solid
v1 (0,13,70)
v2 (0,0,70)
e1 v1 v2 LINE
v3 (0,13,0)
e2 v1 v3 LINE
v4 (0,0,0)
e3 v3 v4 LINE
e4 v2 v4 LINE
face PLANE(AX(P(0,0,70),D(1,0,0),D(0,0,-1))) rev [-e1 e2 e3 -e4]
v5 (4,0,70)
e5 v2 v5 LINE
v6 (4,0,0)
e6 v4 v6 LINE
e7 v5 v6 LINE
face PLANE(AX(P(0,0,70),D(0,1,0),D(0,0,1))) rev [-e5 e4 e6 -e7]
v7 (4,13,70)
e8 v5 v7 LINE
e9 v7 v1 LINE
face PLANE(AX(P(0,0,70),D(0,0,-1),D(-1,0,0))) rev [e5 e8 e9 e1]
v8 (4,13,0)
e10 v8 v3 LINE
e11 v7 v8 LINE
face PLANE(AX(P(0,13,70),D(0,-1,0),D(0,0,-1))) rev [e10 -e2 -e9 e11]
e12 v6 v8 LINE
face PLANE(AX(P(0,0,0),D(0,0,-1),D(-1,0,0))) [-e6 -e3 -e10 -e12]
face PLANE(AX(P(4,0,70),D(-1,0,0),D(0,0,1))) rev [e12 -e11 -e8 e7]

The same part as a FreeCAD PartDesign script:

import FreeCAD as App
import Part
import Sketcher


def add_polygon(sketch, points):
    """Adds a closed chain of lines whose ends are joined by coincident constraints."""
    first, n = sketch.GeometryCount, len(points)
    for a, b in zip(points, points[1:] + points[:1]):
        sketch.addGeometry(Part.LineSegment(App.Vector(*a, 0), App.Vector(*b, 0)), False)
    for i in range(n):
        sketch.addConstraint(Sketcher.Constraint("Coincident", first + i, 2, first + (i + 1) % n, 1))

doc = App.newDocument("Part")
body = doc.addObject("PartDesign::Body", "Body")

# Sketch on XY plane
sketch1 = body.newObject("Sketcher::SketchObject", "Sketch")
sketch1.AttachmentSupport = (doc.getObject("XY_Plane"), [""])
sketch1.MapMode = "FlatFace"
add_polygon(sketch1, [(0, 13), (0, 0), (4, 0), (4, 13)])  # lines 0-3
sketch1.addConstraint(Sketcher.Constraint("Vertical", 0))
sketch1.addConstraint(Sketcher.Constraint("Horizontal", 1))
sketch1.addConstraint(Sketcher.Constraint("Vertical", 2))
sketch1.addConstraint(Sketcher.Constraint("Horizontal", 3))
sketch1.addConstraint(Sketcher.Constraint("Coincident", 0, 2, -1, 1))
sketch1.addConstraint(Sketcher.Constraint("DistanceX", 1, 1, 1, 2, 4.0))
sketch1.addConstraint(Sketcher.Constraint("DistanceY", 0, 2, 0, 1, 13.0))
pad1 = body.newObject("PartDesign::Pad", "Pad")
pad1.Profile = sketch1
pad1.Length = 70

doc.recompute()
